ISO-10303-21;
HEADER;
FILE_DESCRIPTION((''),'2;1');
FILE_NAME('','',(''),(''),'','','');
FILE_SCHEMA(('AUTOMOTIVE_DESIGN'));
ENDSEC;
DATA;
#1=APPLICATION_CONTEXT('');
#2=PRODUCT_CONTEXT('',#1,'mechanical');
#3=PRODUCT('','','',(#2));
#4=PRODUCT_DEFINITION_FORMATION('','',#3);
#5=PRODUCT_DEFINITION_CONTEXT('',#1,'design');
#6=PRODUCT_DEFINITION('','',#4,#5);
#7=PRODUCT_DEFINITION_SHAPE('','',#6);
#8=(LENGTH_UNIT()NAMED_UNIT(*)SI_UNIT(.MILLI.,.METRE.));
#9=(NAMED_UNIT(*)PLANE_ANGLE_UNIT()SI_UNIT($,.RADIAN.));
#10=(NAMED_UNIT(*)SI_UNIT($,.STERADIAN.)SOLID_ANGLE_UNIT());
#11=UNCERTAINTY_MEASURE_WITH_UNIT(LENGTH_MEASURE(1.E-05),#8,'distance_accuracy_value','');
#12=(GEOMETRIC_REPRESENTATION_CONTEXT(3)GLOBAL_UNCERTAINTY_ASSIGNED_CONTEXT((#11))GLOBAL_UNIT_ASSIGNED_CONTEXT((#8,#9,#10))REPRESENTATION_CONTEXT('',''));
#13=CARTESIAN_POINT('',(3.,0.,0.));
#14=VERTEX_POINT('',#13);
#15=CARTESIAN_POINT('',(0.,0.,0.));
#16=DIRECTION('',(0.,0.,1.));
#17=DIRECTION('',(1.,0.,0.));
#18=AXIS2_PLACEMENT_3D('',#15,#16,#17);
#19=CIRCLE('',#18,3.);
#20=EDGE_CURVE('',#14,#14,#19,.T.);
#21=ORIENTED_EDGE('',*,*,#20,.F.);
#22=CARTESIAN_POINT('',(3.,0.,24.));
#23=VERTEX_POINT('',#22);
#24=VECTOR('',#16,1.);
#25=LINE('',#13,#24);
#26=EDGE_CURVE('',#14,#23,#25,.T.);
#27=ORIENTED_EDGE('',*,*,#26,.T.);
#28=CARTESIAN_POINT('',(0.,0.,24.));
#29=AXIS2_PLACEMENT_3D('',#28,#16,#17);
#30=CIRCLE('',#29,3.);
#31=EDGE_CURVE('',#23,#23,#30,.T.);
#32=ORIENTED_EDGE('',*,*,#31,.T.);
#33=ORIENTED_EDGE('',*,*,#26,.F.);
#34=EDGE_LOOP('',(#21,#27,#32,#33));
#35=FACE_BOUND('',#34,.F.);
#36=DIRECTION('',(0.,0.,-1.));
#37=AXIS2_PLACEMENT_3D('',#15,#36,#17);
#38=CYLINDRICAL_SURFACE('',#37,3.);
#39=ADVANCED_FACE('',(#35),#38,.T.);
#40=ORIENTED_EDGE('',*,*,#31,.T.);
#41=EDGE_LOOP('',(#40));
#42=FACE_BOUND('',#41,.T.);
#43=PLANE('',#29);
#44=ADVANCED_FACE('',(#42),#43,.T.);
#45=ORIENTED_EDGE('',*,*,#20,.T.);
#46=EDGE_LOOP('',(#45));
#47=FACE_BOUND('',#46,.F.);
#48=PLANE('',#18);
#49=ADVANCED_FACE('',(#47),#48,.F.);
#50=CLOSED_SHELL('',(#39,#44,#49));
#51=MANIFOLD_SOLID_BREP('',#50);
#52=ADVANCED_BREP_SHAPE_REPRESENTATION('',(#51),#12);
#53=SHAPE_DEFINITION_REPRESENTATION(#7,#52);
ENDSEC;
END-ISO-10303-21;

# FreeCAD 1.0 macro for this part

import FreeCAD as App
import Part
import Sketcher
Q = App.Units.Quantity

doc = App.newDocument("Part")
body = doc.addObject("PartDesign::Body", "Body")

# Sketch on XY plane
sketch1 = doc.addObject("Sketcher::SketchObject", "Sketch")
body.addObject(sketch1)
sketch1.AttachmentSupport = (doc.XY_Plane, [""])
sketch1.MapMode = "FlatFace"
sketch1.addGeometry(Part.Circle(App.Vector(0, 0, 0), App.Vector(0, 0, 1), 3), False)
sketch1.addConstraint([
    Sketcher.Constraint("Coincident", 0, 3, -1, 1),
    Sketcher.Constraint("Diameter", 0, Q("6 mm")),
])
pad1 = doc.addObject("PartDesign::Pad", "Pad")
body.addObject(pad1)
pad1.Profile = sketch1
pad1.Length = 24

doc.recompute()
